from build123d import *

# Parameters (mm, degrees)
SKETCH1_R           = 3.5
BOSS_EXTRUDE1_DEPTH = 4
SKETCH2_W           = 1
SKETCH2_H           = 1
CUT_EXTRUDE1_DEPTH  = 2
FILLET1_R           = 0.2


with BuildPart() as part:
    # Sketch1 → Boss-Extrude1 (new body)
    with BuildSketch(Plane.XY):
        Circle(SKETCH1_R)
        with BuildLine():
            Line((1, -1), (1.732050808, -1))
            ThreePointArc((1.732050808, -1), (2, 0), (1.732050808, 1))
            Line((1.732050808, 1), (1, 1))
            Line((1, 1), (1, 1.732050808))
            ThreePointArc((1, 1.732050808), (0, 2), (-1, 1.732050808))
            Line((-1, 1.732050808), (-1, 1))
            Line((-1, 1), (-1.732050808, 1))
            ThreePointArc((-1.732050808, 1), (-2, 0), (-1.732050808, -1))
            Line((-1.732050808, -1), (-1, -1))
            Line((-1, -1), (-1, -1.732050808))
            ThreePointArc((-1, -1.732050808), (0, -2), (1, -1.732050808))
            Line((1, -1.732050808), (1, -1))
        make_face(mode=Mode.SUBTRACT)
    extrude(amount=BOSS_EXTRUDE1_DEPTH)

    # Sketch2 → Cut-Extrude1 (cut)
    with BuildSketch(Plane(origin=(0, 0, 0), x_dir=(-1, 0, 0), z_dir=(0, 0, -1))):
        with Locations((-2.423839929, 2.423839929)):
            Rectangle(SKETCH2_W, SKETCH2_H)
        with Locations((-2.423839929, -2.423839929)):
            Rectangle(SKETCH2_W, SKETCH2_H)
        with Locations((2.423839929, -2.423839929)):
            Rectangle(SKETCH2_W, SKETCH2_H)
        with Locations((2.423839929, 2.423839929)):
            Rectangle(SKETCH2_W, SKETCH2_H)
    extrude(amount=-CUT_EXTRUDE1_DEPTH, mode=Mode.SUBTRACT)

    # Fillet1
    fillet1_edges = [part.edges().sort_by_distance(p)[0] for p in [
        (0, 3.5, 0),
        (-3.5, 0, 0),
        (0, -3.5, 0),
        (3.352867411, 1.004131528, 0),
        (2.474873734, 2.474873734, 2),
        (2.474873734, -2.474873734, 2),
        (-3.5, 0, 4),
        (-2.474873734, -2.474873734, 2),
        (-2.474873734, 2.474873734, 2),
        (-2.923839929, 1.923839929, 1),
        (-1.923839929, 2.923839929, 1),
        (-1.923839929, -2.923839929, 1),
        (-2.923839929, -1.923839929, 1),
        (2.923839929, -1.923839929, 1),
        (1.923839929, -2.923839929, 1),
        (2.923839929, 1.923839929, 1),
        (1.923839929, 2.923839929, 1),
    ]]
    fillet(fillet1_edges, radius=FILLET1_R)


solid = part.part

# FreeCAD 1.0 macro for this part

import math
import FreeCAD as App
import Part
import Sketcher

V = App.Vector
Q = App.Units.Quantity


def edges_at(feature, points):
    """Names of the edges that pass closest to the given points."""
    edges = feature.Shape.Edges
    near = lambda p: min(range(len(edges)), key=lambda i: edges[i].distToShape(Part.Vertex(*p))[0])
    return sorted({f"Edge{near(p) + 1}" for p in points})


def add_polygon(sketch, points):
    """Adds a closed chain of lines whose ends are joined by coincident constraints."""
    first, n = sketch.GeometryCount, len(points)
    for a, b in zip(points, points[1:] + points[:1]):
        sketch.addGeometry(Part.LineSegment(App.Vector(*a, 0), App.Vector(*b, 0)), False)
    for i in range(n):
        sketch.addConstraint(Sketcher.Constraint("Coincident", first + i, 2, first + (i + 1) % n, 1))

doc = App.newDocument("Part")
body = doc.addObject("PartDesign::Body", "Body")

# Sketch on XY plane
sketch1 = body.newObject("Sketcher::SketchObject", "Sketch")
sketch1.AttachmentSupport = (doc.getObject("XY_Plane"), [""])
sketch1.MapMode = "FlatFace"
sketch1.addGeometry(Part.Circle(V(0, 0, 0), V(0, 0, 1), 3.5), False)
sketch1.addGeometry(Part.LineSegment(V(1.732051, -1, 0), V(1, -1, 0)), False)
sketch1.addGeometry(Part.LineSegment(V(1, -1, 0), V(1, -1.732051, 0)), False)
sketch1.addGeometry(Part.ArcOfCircle(Part.Circle(V(0, 0, 0), V(0, 0, 1), 2), math.radians(-120), math.radians(-60)), False)
sketch1.addGeometry(Part.LineSegment(V(-1, -1.732051, 0), V(-1, -1, 0)), False)
sketch1.addGeometry(Part.LineSegment(V(-1, -1, 0), V(-1.732051, -1, 0)), False)
sketch1.addGeometry(Part.ArcOfCircle(Part.Circle(V(0, 0, 0), V(0, 0, 1), 2), math.radians(150), math.radians(210)), False)
sketch1.addGeometry(Part.LineSegment(V(-1.732051, 1, 0), V(-1, 1, 0)), False)
sketch1.addGeometry(Part.LineSegment(V(-1, 1, 0), V(-1, 1.732051, 0)), False)
sketch1.addGeometry(Part.ArcOfCircle(Part.Circle(V(0, 0, 0), V(0, 0, 1), 2), math.radians(60), math.radians(120)), False)
sketch1.addGeometry(Part.LineSegment(V(1, 1.732051, 0), V(1, 1, 0)), False)
sketch1.addGeometry(Part.LineSegment(V(1, 1, 0), V(1.732051, 1, 0)), False)
sketch1.addGeometry(Part.ArcOfCircle(Part.Circle(V(0, 0, 0), V(0, 0, 1), 2), math.radians(-30), math.radians(30)), False)
sketch1.addConstraint(Sketcher.Constraint("Coincident", 1, 2, 2, 1))
sketch1.addConstraint(Sketcher.Constraint("Coincident", 2, 2, 3, 2))
sketch1.addConstraint(Sketcher.Constraint("Coincident", 3, 1, 4, 1))
sketch1.addConstraint(Sketcher.Constraint("Coincident", 4, 2, 5, 1))
sketch1.addConstraint(Sketcher.Constraint("Coincident", 5, 2, 6, 2))
sketch1.addConstraint(Sketcher.Constraint("Coincident", 6, 1, 7, 1))
sketch1.addConstraint(Sketcher.Constraint("Coincident", 7, 2, 8, 1))
sketch1.addConstraint(Sketcher.Constraint("Coincident", 8, 2, 9, 2))
sketch1.addConstraint(Sketcher.Constraint("Coincident", 9, 1, 10, 1))
sketch1.addConstraint(Sketcher.Constraint("Coincident", 10, 2, 11, 1))
sketch1.addConstraint(Sketcher.Constraint("Coincident", 11, 2, 12, 2))
sketch1.addConstraint(Sketcher.Constraint("Coincident", 12, 1, 1, 1))
sketch1.addConstraint(Sketcher.Constraint("Horizontal", 1))
sketch1.addConstraint(Sketcher.Constraint("Vertical", 2))
sketch1.addConstraint(Sketcher.Constraint("Vertical", 4))
sketch1.addConstraint(Sketcher.Constraint("Horizontal", 5))
sketch1.addConstraint(Sketcher.Constraint("Horizontal", 7))
sketch1.addConstraint(Sketcher.Constraint("Vertical", 8))
sketch1.addConstraint(Sketcher.Constraint("Vertical", 10))
sketch1.addConstraint(Sketcher.Constraint("Horizontal", 11))
sketch1.addConstraint(Sketcher.Constraint("Coincident", 0, 3, -1, 1))
sketch1.addConstraint(Sketcher.Constraint("Coincident", 3, 3, -1, 1))
sketch1.addConstraint(Sketcher.Constraint("Coincident", 6, 3, -1, 1))
sketch1.addConstraint(Sketcher.Constraint("Coincident", 9, 3, -1, 1))
sketch1.addConstraint(Sketcher.Constraint("Coincident", 12, 3, -1, 1))
sketch1.addConstraint(Sketcher.Constraint("Equal", 3, 6))
sketch1.addConstraint(Sketcher.Constraint("Equal", 6, 9))
sketch1.addConstraint(Sketcher.Constraint("Equal", 9, 12))
sketch1.addConstraint(Sketcher.Constraint("Symmetric", 1, 2, 7, 2, -1, 1))
sketch1.addConstraint(Sketcher.Constraint("Symmetric", 4, 2, 10, 2, -1, 1))
sketch1.addConstraint(Sketcher.Constraint("Symmetric", 1, 2, 4, 2, -2))
sketch1.addConstraint(Sketcher.Constraint("Equal", 11, 2))
sketch1.addConstraint(Sketcher.Constraint("Diameter", 0, Q("7 mm")))
sketch1.addConstraint(Sketcher.Constraint("Radius", 3, Q("2 mm")))
sketch1.addConstraint(Sketcher.Constraint("DistanceX", -1, 1, 1, 2, Q("1 mm")))
pad1 = body.newObject("PartDesign::Pad", "Pad")
pad1.Profile = sketch1
pad1.Length = 4

# Sketch on XY plane
sketch2 = body.newObject("Sketcher::SketchObject", "Sketch001")
sketch2.AttachmentSupport = (doc.getObject("XY_Plane"), [""])
sketch2.MapMode = "FlatFace"
add_polygon(sketch2, [(2.92384, 2.92384), (2.92384, 1.92384), (1.92384, 1.92384), (1.92384, 2.92384)])  # lines 0-3
add_polygon(sketch2, [(2.92384, -1.92384), (2.92384, -2.92384), (1.92384, -2.92384), (1.92384, -1.92384)])  # lines 4-7
add_polygon(sketch2, [(-1.92384, -1.92384), (-1.92384, -2.92384), (-2.92384, -2.92384), (-2.92384, -1.92384)])  # lines 8-11
add_polygon(sketch2, [(-1.92384, 2.92384), (-1.92384, 1.92384), (-2.92384, 1.92384), (-2.92384, 2.92384)])  # lines 12-15
sketch2.addConstraint(Sketcher.Constraint("Vertical", 0))
sketch2.addConstraint(Sketcher.Constraint("Horizontal", 1))
sketch2.addConstraint(Sketcher.Constraint("Vertical", 2))
sketch2.addConstraint(Sketcher.Constraint("Horizontal", 3))
sketch2.addConstraint(Sketcher.Constraint("Vertical", 4))
sketch2.addConstraint(Sketcher.Constraint("Horizontal", 5))
sketch2.addConstraint(Sketcher.Constraint("Vertical", 6))
sketch2.addConstraint(Sketcher.Constraint("Horizontal", 7))
sketch2.addConstraint(Sketcher.Constraint("Vertical", 8))
sketch2.addConstraint(Sketcher.Constraint("Horizontal", 9))
sketch2.addConstraint(Sketcher.Constraint("Vertical", 10))
sketch2.addConstraint(Sketcher.Constraint("Horizontal", 11))
sketch2.addConstraint(Sketcher.Constraint("Vertical", 12))
sketch2.addConstraint(Sketcher.Constraint("Horizontal", 13))
sketch2.addConstraint(Sketcher.Constraint("Vertical", 14))
sketch2.addConstraint(Sketcher.Constraint("Horizontal", 15))
sketch2.addConstraint(Sketcher.Constraint("Symmetric", 2, 2, 8, 2, -1, 1))
sketch2.addConstraint(Sketcher.Constraint("Symmetric", 0, 2, 10, 2, -1, 1))
sketch2.addConstraint(Sketcher.Constraint("Symmetric", 6, 2, 12, 2, -1, 1))
sketch2.addConstraint(Sketcher.Constraint("Symmetric", 4, 2, 14, 2, -1, 1))
sketch2.addConstraint(Sketcher.Constraint("Symmetric", 5, 2, 8, 2, -2))
sketch2.addConstraint(Sketcher.Constraint("Symmetric", 7, 2, 10, 2, -2))
sketch2.addConstraint(Sketcher.Constraint("Equal", 15, 0))
sketch2.addConstraint(Sketcher.Constraint("DistanceX", 1, 2, 1, 1, Q("1 mm")))
sketch2.addConstraint(Sketcher.Constraint("DistanceX", -1, 1, 0, 2, Q("2.92384 mm")))
sketch2.addConstraint(Sketcher.Constraint("DistanceY", -1, 1, 0, 2, Q("1.92384 mm")))
pocket1 = body.newObject("PartDesign::Pocket", "Pocket")
pocket1.Profile = sketch2
pocket1.Length = 2
pocket1.Reversed = True
doc.recompute()

fillet = body.newObject("PartDesign::Fillet", "Fillet")
fillet.Base = (pocket1, edges_at(pocket1, [
    (0, 3.5, 0),
    (-3.5, 0, 0),
    (0, -3.5, 0),
    (3.353, 1.004, 0),
    (2.475, 2.475, 2),
    (2.475, -2.475, 2),
    (-3.5, 0, 4),
    (-2.475, -2.475, 2),
    (-2.475, 2.475, 2),
    (-2.924, 1.924, 1),
    (-1.924, 2.924, 1),
    (-1.924, -2.924, 1),
    (-2.924, -1.924, 1),
    (2.924, -1.924, 1),
    (1.924, -2.924, 1),
    (2.924, 1.924, 1),
    (1.924, 2.924, 1),
]))
fillet.Radius = 0.2

doc.recompute()
